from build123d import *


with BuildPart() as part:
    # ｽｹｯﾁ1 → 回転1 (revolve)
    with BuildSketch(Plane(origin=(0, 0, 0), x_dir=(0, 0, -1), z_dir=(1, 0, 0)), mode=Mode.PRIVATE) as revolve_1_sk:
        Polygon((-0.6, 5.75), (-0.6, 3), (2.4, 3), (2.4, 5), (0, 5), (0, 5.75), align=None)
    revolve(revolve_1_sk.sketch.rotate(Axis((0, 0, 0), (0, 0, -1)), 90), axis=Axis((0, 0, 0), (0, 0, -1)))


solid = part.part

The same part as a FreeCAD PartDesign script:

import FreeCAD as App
import Part
import Sketcher
from FreeCAD import Vector

doc = App.newDocument("Part")
params = doc.addObject("Spreadsheet::Sheet", "Params")
for row, (alias, value) in enumerate([
    ("sketch1_width", "2 mm"),
    ("sketch1_height", "3 mm"),
    ("sketch1_height2", "2.4 mm"),
    ("sketch1_width2", "2.75 mm"),
    ("revolution_angle", "360 deg"),
], start=1):
    params.set(f"A{row}", alias)
    params.set(f"B{row}", "=" + value)
    params.setAlias(f"B{row}", alias)

body = doc.addObject("PartDesign::Body", "Body")

sketch1 = body.newObject("Sketcher::SketchObject", "Sketch")
sketch1.AttachmentSupport = (doc.getObject("YZ_Plane"), [""])
sketch1.MapMode = "FlatFace"
sketch1.addGeometry([
    Part.LineSegment(Vector(5.75, 0.6, 0), Vector(3, 0.6, 0)),
    Part.LineSegment(Vector(3, 0.6, 0), Vector(3, -2.4, 0)),
    Part.LineSegment(Vector(3, -2.4, 0), Vector(5, -2.4, 0)),
    Part.LineSegment(Vector(5, -2.4, 0), Vector(5, 0, 0)),
    Part.LineSegment(Vector(5, 0, 0), Vector(5.75, 0, 0)),
    Part.LineSegment(Vector(5.75, 0, 0), Vector(5.75, 0.6, 0)),
], False)
sketch1.addConstraint([
    Sketcher.Constraint("Coincident", 0, 2, 1, 1),
    Sketcher.Constraint("Coincident", 1, 2, 2, 1),
    Sketcher.Constraint("Coincident", 2, 2, 3, 1),
    Sketcher.Constraint("Coincident", 3, 2, 4, 1),
    Sketcher.Constraint("Coincident", 4, 2, 5, 1),
    Sketcher.Constraint("Coincident", 5, 2, 0, 1),
    Sketcher.Constraint("Horizontal", 0),
    Sketcher.Constraint("Vertical", 1),
    Sketcher.Constraint("Horizontal", 2),
    Sketcher.Constraint("Vertical", 3),
    Sketcher.Constraint("Horizontal", 4),
    Sketcher.Constraint("Vertical", 5),
    Sketcher.Constraint("PointOnObject", 3, 2, -1),
    Sketcher.Constraint("DistanceX", 2, 1, 2, 2, 2.0),
    Sketcher.Constraint("DistanceY", 1, 2, 1, 1, 3.0),
    Sketcher.Constraint("DistanceY", 3, 1, 3, 2, 2.4),
    Sketcher.Constraint("DistanceX", -1, 1, 0, 2, 3.0),
    Sketcher.Constraint("DistanceX", 0, 2, 0, 1, 2.75),
])
sketch1.setExpression("Constraints[13]", "Params.sketch1_width")
sketch1.setExpression("Constraints[14]", "Params.sketch1_height")
sketch1.setExpression("Constraints[15]", "Params.sketch1_height2")
sketch1.setExpression("Constraints[17]", "Params.sketch1_width2")
revolution = body.newObject("PartDesign::Revolution", "Revolution")
revolution.Profile = sketch1
revolution.ReferenceAxis = (sketch1, ["V_Axis"])
revolution.setExpression("Angle", "Params.revolution_angle")

doc.recompute()
